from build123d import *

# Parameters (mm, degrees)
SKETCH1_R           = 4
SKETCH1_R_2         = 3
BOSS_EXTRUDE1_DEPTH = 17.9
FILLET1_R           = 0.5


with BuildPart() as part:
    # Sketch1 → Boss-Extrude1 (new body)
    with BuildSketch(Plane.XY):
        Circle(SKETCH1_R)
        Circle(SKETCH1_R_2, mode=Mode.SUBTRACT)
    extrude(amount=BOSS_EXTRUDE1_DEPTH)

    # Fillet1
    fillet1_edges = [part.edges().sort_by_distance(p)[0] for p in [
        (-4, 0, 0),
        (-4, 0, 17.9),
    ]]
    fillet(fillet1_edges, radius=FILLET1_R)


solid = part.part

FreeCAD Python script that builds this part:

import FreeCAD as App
import Part
import Sketcher
Q = App.Units.Quantity


def edges_at(feature, points):
    """Names of the edges that pass closest to the given points."""
    edges = feature.Shape.Edges
    near = lambda p: min(range(len(edges)), key=lambda i: edges[i].distToShape(Part.Vertex(*p))[0])
    return sorted({f"Edge{near(p) + 1}" for p in points})

doc = App.newDocument("Part")
params = doc.addObject("Spreadsheet::Sheet", "Params")
for row, (alias, value) in enumerate([
    ("sketch1_diameter", "8 mm"),
    ("sketch1_diameter2", "6 mm"),
    ("pad1_length", "17.9 mm"),
    ("fillet_radius", "0.5 mm"),
], start=1):
    params.set(f"A{row}", alias)
    params.set(f"B{row}", "=" + value)
    params.setAlias(f"B{row}", alias)

body = doc.addObject("PartDesign::Body", "Body")

# Sketch on XY plane
sketch1 = doc.addObject("Sketcher::SketchObject", "Sketch")
body.addObject(sketch1)
sketch1.AttachmentSupport = (doc.XY_Plane, [""])
sketch1.MapMode = "FlatFace"
sketch1.addGeometry(Part.Circle(App.Vector(0, 0, 0), App.Vector(0, 0, 1), 4), False)
sketch1.addGeometry(Part.Circle(App.Vector(0, 0, 0), App.Vector(0, 0, 1), 3), False)
sketch1.addConstraint(Sketcher.Constraint("Coincident", 0, 3, -1, 1))
sketch1.addConstraint(Sketcher.Constraint("Coincident", 1, 3, -1, 1))
sketch1.addConstraint(Sketcher.Constraint("Diameter", 0, Q("8 mm")))
sketch1.addConstraint(Sketcher.Constraint("Diameter", 1, Q("6 mm")))
sketch1.setExpression("Constraints[2]", "Params.sketch1_diameter")
sketch1.setExpression("Constraints[3]", "Params.sketch1_diameter2")
pad1 = doc.addObject("PartDesign::Pad", "Pad")
body.addObject(pad1)
pad1.Profile = sketch1
pad1.setExpression("Length", "Params.pad1_length")
doc.recompute()

fillet = doc.addObject("PartDesign::Fillet", "Fillet")
body.addObject(fillet)
fillet.Base = (pad1, edges_at(pad1, [(-4, 0, 0), (-4, 0, 17.9)]))
fillet.setExpression("Radius", "Params.fillet_radius")

doc.recompute()
